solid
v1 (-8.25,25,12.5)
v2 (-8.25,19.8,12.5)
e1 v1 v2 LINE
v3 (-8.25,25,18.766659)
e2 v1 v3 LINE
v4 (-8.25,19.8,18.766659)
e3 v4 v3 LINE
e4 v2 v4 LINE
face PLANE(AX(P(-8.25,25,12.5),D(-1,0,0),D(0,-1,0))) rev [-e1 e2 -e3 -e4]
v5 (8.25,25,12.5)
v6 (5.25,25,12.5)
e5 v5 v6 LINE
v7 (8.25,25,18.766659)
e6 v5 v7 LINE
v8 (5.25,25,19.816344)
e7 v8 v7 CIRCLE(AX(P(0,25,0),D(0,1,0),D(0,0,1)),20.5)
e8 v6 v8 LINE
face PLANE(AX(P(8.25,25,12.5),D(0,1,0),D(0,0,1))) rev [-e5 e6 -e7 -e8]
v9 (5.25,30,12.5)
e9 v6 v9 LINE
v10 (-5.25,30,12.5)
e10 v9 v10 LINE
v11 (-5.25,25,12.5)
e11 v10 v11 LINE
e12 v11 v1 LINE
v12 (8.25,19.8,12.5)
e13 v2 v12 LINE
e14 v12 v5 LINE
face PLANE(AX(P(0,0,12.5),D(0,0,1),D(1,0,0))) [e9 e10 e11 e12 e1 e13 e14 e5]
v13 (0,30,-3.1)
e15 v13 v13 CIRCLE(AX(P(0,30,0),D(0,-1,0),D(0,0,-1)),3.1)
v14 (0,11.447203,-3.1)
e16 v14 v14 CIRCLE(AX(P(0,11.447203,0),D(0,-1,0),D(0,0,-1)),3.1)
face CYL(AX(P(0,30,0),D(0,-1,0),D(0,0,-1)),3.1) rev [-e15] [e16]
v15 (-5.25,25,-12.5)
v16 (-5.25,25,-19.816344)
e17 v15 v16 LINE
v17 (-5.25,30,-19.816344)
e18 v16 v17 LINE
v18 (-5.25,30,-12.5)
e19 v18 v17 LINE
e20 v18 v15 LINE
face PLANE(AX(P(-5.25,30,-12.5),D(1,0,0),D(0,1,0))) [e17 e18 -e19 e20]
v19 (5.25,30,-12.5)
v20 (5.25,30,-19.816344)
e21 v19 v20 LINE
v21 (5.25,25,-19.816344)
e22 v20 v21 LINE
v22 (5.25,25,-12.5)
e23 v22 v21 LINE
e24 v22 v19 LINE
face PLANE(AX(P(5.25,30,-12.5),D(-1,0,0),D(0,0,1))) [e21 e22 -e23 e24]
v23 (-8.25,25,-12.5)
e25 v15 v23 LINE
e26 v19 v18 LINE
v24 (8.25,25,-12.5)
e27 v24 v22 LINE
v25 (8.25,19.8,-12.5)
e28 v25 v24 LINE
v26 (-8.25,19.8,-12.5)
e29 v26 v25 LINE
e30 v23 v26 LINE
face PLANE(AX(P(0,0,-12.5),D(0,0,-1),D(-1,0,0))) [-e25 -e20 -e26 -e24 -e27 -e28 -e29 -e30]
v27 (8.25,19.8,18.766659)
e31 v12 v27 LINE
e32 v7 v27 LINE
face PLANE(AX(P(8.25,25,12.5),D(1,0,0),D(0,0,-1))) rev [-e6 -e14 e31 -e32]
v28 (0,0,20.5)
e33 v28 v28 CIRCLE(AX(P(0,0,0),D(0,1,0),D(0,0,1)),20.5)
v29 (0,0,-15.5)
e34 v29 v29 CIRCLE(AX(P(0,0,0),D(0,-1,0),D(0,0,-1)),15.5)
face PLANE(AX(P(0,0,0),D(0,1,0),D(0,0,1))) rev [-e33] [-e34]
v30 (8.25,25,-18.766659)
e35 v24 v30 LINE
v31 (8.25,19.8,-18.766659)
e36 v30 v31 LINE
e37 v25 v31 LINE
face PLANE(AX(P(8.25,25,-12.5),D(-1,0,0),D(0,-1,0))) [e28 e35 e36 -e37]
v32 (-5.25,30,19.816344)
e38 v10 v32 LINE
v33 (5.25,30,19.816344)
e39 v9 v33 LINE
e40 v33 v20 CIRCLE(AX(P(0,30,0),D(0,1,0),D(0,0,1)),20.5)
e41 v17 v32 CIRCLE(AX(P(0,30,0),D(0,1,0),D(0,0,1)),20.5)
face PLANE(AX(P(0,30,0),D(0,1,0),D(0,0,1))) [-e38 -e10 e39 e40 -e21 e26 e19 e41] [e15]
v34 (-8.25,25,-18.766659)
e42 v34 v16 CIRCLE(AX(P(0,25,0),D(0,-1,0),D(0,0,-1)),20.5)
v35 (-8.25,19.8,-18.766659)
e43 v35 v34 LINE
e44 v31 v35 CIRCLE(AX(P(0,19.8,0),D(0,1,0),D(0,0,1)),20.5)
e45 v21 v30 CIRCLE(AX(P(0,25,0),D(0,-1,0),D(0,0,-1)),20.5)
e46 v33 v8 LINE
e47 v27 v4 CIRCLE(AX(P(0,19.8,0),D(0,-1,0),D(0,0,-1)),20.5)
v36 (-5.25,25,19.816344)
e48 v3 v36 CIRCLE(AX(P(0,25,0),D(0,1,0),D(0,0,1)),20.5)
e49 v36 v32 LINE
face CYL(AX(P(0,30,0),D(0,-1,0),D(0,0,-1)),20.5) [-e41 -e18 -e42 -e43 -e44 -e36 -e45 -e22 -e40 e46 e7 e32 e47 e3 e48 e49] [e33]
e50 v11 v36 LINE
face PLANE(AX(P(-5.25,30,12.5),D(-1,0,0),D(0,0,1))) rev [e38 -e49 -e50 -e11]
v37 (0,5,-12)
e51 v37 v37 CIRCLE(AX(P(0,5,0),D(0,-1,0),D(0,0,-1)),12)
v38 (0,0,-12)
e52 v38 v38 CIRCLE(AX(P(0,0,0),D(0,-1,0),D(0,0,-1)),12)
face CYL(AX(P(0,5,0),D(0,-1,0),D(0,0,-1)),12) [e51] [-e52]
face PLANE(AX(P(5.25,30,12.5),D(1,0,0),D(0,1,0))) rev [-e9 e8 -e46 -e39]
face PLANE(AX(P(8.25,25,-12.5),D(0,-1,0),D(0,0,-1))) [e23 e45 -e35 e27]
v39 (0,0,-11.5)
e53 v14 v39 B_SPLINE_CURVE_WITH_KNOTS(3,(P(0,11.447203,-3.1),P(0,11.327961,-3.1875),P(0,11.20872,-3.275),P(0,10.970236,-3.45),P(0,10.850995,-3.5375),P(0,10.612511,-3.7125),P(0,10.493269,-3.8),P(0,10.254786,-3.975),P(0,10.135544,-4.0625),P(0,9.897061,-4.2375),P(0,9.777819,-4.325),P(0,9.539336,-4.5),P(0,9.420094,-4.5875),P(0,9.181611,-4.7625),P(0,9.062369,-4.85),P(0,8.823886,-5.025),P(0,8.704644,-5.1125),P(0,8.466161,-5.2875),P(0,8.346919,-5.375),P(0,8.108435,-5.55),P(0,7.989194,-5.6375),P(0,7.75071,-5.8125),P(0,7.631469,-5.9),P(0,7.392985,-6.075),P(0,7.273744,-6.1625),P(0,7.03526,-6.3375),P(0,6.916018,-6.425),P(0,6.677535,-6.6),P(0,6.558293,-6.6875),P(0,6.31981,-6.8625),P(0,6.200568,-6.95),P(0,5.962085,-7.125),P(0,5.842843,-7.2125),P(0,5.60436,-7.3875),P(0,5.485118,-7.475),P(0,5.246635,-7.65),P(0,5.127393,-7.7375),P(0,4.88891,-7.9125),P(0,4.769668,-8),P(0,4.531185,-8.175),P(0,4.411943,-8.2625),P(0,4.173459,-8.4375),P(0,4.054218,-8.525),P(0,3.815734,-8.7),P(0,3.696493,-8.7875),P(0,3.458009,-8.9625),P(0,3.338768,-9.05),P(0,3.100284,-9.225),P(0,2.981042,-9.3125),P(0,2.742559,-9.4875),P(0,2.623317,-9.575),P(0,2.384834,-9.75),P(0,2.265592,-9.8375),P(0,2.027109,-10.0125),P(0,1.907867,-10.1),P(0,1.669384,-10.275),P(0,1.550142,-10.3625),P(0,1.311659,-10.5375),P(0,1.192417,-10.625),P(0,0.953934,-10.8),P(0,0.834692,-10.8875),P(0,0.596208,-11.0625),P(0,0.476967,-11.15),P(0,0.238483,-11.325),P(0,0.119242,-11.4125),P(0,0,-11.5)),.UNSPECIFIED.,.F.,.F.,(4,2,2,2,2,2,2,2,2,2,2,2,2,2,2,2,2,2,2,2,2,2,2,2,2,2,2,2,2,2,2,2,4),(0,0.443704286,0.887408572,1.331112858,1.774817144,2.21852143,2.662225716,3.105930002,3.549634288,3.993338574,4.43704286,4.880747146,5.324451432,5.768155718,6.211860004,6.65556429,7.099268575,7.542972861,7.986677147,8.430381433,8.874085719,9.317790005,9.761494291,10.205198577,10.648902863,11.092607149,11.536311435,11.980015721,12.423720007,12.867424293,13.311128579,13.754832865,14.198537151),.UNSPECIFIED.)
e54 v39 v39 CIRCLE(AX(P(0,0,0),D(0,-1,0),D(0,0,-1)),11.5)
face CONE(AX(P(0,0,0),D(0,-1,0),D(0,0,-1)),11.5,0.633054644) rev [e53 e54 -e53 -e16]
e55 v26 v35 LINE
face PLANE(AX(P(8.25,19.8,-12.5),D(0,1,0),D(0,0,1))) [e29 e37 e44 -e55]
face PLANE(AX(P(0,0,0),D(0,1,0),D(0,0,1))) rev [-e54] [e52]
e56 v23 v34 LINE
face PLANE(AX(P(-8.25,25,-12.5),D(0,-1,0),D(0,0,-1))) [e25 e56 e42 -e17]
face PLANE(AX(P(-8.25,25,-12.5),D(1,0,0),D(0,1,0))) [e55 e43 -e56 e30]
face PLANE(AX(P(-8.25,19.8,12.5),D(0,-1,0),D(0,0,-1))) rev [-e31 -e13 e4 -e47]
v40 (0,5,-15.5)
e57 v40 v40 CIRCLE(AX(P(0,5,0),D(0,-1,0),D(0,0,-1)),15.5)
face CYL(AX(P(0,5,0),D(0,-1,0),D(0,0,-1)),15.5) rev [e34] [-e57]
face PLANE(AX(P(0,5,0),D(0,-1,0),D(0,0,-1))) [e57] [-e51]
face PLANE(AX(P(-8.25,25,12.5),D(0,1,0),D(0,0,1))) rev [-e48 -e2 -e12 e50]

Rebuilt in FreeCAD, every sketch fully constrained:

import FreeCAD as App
import Part
import Sketcher

V = App.Vector
Q = App.Units.Quantity


def add_polygon(sketch, points):
    """Adds a closed chain of lines whose ends are joined by coincident constraints."""
    first, n = sketch.GeometryCount, len(points)
    for a, b in zip(points, points[1:] + points[:1]):
        sketch.addGeometry(Part.LineSegment(App.Vector(*a, 0), App.Vector(*b, 0)), False)
    for i in range(n):
        sketch.addConstraint(Sketcher.Constraint("Coincident", first + i, 2, first + (i + 1) % n, 1))

doc = App.newDocument("Part")
body = doc.addObject("PartDesign::Body", "Body")

# Sketch on XZ plane
sketch1 = doc.addObject("Sketcher::SketchObject", "Sketch")
body.addObject(sketch1)
sketch1.AttachmentSupport = (doc.XZ_Plane, [""])
sketch1.MapMode = "FlatFace"
sketch1.addGeometry(Part.Circle(V(0, 0, 0), V(0, 0, 1), 20.5), False)
sketch1.addConstraint([
    Sketcher.Constraint("Coincident", 0, 3, -1, 1),
    Sketcher.Constraint("Diameter", 0, Q("41 mm")),
])
pad1 = doc.addObject("PartDesign::Pad", "Pad")
body.addObject(pad1)
pad1.Profile = sketch1
pad1.Length = 30
pad1.Reversed = True

# Sketch on XZ plane
sketch2 = doc.addObject("Sketcher::SketchObject", "Sketch001")
body.addObject(sketch2)
sketch2.AttachmentSupport = (doc.XZ_Plane, [""])
sketch2.MapMode = "FlatFace"
sketch2.addGeometry([
    Part.Circle(V(0, 0, 0), V(0, 0, 1), 15.5),
    Part.Circle(V(0, 0, 0), V(0, 0, 1), 12),
], False)
sketch2.addConstraint([
    Sketcher.Constraint("Coincident", 0, 3, -1, 1),
    Sketcher.Constraint("Coincident", 1, 3, -1, 1),
    Sketcher.Constraint("Diameter", 0, Q("31 mm")),
    Sketcher.Constraint("Diameter", 1, Q("24 mm")),
])
pocket1 = doc.addObject("PartDesign::Pocket", "Pocket")
body.addObject(pocket1)
pocket1.Profile = sketch2
pocket1.Length = 5

# Sketch on XY plane
sketch3 = doc.addObject("Sketcher::SketchObject", "Sketch002")
body.addObject(sketch3)
sketch3.AttachmentSupport = (doc.XY_Plane, [""])
sketch3.MapMode = "FlatFace"
add_polygon(sketch3, [(0, 11.447203), (0, 0), (11.5, 0), (3.1, 11.447203)])  # lines 0-3
sketch3.addConstraint([
    Sketcher.Constraint("Vertical", 0),
    Sketcher.Constraint("Horizontal", 1),
    Sketcher.Constraint("Horizontal", 3),
    Sketcher.Constraint("Coincident", 0, 2, -1, 1),
    Sketcher.Constraint("DistanceX", 1, 1, 1, 2, Q("11.5 mm")),
    Sketcher.Constraint("DistanceX", 3, 2, 3, 1, Q("3.1 mm")),
    Sketcher.Constraint("DistanceY", 0, 2, 0, 1, Q("11.447203 mm")),
])
groove = doc.addObject("PartDesign::Groove", "Groove")
body.addObject(groove)
groove.Profile = sketch3
groove.ReferenceAxis = (sketch3, ["V_Axis"])
groove.Angle = 360

# Sketch on XZ plane
sketch4 = doc.addObject("Sketcher::SketchObject", "Sketch003")
body.addObject(sketch4)
sketch4.AttachmentSupport = (doc.XZ_Plane, [""])
sketch4.MapMode = "FlatFace"
sketch4.AttachmentOffset = App.Placement(V(0, 0, -11.447203), App.Rotation())
sketch4.addGeometry(Part.Circle(V(0, 0, 0), V(0, 0, 1), 3.1), False)
sketch4.addConstraint([
    Sketcher.Constraint("Coincident", 0, 3, -1, 1),
    Sketcher.Constraint("Diameter", 0, Q("6.2 mm")),
])
pocket2 = doc.addObject("PartDesign::Pocket", "Pocket001")
body.addObject(pocket2)
pocket2.Profile = sketch4
pocket2.Type = "ThroughAll"

# Sketch on XY plane
sketch5 = doc.addObject("Sketcher::SketchObject", "Sketch004")
body.addObject(sketch5)
sketch5.AttachmentSupport = (doc.XY_Plane, [""])
sketch5.MapMode = "FlatFace"
sketch5.AttachmentOffset = App.Placement(V(0, 0, 20.5), App.Rotation())
add_polygon(sketch5, [(5.25, 30), (-5.25, 30), (-5.25, 25), (-8.25, 25), (-8.25, 19.8), (8.25, 19.8), (8.25, 25), (5.25, 25)])  # lines 0-7
sketch5.addConstraint([
    Sketcher.Constraint("Horizontal", 0),
    Sketcher.Constraint("Vertical", 1),
    Sketcher.Constraint("Horizontal", 2),
    Sketcher.Constraint("Vertical", 3),
    Sketcher.Constraint("Horizontal", 4),
    Sketcher.Constraint("Vertical", 5),
    Sketcher.Constraint("Horizontal", 6),
    Sketcher.Constraint("Vertical", 7),
    Sketcher.Constraint("Symmetric", 2, 2, 5, 2, -2),
    Sketcher.Constraint("Equal", 2, 6),
    Sketcher.Constraint("DistanceX", 2, 2, 2, 1, Q("3 mm")),
    Sketcher.Constraint("DistanceY", 1, 2, 1, 1, Q("5 mm")),
    Sketcher.Constraint("DistanceX", 0, 2, 0, 1, Q("10.5 mm")),
    Sketcher.Constraint("DistanceY", 3, 2, 3, 1, Q("5.2 mm")),
    Sketcher.Constraint("DistanceY", -1, 1, 0, 2, Q("30 mm")),
])
pocket3 = doc.addObject("PartDesign::Pocket", "Pocket002")
body.addObject(pocket3)
pocket3.Profile = sketch5
pocket3.Length = 8

# Sketch on XY plane
sketch6 = doc.addObject("Sketcher::SketchObject", "Sketch005")
body.addObject(sketch6)
sketch6.AttachmentSupport = (doc.XY_Plane, [""])
sketch6.MapMode = "FlatFace"
sketch6.AttachmentOffset = App.Placement(V(0, 0, -20.5), App.Rotation())
add_polygon(sketch6, [(5.25, 30), (-5.25, 30), (-5.25, 25), (-8.25, 25), (-8.25, 19.8), (8.25, 19.8), (8.25, 25), (5.25, 25)])  # lines 0-7
sketch6.addConstraint([
    Sketcher.Constraint("Horizontal", 0),
    Sketcher.Constraint("Vertical", 1),
    Sketcher.Constraint("Horizontal", 2),
    Sketcher.Constraint("Vertical", 3),
    Sketcher.Constraint("Horizontal", 4),
    Sketcher.Constraint("Vertical", 5),
    Sketcher.Constraint("Horizontal", 6),
    Sketcher.Constraint("Vertical", 7),
    Sketcher.Constraint("Symmetric", 2, 2, 5, 2, -2),
    Sketcher.Constraint("Equal", 2, 6),
    Sketcher.Constraint("DistanceX", 2, 2, 2, 1, Q("3 mm")),
    Sketcher.Constraint("DistanceY", 1, 2, 1, 1, Q("5 mm")),
    Sketcher.Constraint("DistanceX", 0, 2, 0, 1, Q("10.5 mm")),
    Sketcher.Constraint("DistanceY", 3, 2, 3, 1, Q("5.2 mm")),
    Sketcher.Constraint("DistanceY", -1, 1, 0, 2, Q("30 mm")),
])
pocket4 = doc.addObject("PartDesign::Pocket", "Pocket003")
body.addObject(pocket4)
pocket4.Profile = sketch6
pocket4.Length = 8
pocket4.Reversed = True

doc.recompute()
